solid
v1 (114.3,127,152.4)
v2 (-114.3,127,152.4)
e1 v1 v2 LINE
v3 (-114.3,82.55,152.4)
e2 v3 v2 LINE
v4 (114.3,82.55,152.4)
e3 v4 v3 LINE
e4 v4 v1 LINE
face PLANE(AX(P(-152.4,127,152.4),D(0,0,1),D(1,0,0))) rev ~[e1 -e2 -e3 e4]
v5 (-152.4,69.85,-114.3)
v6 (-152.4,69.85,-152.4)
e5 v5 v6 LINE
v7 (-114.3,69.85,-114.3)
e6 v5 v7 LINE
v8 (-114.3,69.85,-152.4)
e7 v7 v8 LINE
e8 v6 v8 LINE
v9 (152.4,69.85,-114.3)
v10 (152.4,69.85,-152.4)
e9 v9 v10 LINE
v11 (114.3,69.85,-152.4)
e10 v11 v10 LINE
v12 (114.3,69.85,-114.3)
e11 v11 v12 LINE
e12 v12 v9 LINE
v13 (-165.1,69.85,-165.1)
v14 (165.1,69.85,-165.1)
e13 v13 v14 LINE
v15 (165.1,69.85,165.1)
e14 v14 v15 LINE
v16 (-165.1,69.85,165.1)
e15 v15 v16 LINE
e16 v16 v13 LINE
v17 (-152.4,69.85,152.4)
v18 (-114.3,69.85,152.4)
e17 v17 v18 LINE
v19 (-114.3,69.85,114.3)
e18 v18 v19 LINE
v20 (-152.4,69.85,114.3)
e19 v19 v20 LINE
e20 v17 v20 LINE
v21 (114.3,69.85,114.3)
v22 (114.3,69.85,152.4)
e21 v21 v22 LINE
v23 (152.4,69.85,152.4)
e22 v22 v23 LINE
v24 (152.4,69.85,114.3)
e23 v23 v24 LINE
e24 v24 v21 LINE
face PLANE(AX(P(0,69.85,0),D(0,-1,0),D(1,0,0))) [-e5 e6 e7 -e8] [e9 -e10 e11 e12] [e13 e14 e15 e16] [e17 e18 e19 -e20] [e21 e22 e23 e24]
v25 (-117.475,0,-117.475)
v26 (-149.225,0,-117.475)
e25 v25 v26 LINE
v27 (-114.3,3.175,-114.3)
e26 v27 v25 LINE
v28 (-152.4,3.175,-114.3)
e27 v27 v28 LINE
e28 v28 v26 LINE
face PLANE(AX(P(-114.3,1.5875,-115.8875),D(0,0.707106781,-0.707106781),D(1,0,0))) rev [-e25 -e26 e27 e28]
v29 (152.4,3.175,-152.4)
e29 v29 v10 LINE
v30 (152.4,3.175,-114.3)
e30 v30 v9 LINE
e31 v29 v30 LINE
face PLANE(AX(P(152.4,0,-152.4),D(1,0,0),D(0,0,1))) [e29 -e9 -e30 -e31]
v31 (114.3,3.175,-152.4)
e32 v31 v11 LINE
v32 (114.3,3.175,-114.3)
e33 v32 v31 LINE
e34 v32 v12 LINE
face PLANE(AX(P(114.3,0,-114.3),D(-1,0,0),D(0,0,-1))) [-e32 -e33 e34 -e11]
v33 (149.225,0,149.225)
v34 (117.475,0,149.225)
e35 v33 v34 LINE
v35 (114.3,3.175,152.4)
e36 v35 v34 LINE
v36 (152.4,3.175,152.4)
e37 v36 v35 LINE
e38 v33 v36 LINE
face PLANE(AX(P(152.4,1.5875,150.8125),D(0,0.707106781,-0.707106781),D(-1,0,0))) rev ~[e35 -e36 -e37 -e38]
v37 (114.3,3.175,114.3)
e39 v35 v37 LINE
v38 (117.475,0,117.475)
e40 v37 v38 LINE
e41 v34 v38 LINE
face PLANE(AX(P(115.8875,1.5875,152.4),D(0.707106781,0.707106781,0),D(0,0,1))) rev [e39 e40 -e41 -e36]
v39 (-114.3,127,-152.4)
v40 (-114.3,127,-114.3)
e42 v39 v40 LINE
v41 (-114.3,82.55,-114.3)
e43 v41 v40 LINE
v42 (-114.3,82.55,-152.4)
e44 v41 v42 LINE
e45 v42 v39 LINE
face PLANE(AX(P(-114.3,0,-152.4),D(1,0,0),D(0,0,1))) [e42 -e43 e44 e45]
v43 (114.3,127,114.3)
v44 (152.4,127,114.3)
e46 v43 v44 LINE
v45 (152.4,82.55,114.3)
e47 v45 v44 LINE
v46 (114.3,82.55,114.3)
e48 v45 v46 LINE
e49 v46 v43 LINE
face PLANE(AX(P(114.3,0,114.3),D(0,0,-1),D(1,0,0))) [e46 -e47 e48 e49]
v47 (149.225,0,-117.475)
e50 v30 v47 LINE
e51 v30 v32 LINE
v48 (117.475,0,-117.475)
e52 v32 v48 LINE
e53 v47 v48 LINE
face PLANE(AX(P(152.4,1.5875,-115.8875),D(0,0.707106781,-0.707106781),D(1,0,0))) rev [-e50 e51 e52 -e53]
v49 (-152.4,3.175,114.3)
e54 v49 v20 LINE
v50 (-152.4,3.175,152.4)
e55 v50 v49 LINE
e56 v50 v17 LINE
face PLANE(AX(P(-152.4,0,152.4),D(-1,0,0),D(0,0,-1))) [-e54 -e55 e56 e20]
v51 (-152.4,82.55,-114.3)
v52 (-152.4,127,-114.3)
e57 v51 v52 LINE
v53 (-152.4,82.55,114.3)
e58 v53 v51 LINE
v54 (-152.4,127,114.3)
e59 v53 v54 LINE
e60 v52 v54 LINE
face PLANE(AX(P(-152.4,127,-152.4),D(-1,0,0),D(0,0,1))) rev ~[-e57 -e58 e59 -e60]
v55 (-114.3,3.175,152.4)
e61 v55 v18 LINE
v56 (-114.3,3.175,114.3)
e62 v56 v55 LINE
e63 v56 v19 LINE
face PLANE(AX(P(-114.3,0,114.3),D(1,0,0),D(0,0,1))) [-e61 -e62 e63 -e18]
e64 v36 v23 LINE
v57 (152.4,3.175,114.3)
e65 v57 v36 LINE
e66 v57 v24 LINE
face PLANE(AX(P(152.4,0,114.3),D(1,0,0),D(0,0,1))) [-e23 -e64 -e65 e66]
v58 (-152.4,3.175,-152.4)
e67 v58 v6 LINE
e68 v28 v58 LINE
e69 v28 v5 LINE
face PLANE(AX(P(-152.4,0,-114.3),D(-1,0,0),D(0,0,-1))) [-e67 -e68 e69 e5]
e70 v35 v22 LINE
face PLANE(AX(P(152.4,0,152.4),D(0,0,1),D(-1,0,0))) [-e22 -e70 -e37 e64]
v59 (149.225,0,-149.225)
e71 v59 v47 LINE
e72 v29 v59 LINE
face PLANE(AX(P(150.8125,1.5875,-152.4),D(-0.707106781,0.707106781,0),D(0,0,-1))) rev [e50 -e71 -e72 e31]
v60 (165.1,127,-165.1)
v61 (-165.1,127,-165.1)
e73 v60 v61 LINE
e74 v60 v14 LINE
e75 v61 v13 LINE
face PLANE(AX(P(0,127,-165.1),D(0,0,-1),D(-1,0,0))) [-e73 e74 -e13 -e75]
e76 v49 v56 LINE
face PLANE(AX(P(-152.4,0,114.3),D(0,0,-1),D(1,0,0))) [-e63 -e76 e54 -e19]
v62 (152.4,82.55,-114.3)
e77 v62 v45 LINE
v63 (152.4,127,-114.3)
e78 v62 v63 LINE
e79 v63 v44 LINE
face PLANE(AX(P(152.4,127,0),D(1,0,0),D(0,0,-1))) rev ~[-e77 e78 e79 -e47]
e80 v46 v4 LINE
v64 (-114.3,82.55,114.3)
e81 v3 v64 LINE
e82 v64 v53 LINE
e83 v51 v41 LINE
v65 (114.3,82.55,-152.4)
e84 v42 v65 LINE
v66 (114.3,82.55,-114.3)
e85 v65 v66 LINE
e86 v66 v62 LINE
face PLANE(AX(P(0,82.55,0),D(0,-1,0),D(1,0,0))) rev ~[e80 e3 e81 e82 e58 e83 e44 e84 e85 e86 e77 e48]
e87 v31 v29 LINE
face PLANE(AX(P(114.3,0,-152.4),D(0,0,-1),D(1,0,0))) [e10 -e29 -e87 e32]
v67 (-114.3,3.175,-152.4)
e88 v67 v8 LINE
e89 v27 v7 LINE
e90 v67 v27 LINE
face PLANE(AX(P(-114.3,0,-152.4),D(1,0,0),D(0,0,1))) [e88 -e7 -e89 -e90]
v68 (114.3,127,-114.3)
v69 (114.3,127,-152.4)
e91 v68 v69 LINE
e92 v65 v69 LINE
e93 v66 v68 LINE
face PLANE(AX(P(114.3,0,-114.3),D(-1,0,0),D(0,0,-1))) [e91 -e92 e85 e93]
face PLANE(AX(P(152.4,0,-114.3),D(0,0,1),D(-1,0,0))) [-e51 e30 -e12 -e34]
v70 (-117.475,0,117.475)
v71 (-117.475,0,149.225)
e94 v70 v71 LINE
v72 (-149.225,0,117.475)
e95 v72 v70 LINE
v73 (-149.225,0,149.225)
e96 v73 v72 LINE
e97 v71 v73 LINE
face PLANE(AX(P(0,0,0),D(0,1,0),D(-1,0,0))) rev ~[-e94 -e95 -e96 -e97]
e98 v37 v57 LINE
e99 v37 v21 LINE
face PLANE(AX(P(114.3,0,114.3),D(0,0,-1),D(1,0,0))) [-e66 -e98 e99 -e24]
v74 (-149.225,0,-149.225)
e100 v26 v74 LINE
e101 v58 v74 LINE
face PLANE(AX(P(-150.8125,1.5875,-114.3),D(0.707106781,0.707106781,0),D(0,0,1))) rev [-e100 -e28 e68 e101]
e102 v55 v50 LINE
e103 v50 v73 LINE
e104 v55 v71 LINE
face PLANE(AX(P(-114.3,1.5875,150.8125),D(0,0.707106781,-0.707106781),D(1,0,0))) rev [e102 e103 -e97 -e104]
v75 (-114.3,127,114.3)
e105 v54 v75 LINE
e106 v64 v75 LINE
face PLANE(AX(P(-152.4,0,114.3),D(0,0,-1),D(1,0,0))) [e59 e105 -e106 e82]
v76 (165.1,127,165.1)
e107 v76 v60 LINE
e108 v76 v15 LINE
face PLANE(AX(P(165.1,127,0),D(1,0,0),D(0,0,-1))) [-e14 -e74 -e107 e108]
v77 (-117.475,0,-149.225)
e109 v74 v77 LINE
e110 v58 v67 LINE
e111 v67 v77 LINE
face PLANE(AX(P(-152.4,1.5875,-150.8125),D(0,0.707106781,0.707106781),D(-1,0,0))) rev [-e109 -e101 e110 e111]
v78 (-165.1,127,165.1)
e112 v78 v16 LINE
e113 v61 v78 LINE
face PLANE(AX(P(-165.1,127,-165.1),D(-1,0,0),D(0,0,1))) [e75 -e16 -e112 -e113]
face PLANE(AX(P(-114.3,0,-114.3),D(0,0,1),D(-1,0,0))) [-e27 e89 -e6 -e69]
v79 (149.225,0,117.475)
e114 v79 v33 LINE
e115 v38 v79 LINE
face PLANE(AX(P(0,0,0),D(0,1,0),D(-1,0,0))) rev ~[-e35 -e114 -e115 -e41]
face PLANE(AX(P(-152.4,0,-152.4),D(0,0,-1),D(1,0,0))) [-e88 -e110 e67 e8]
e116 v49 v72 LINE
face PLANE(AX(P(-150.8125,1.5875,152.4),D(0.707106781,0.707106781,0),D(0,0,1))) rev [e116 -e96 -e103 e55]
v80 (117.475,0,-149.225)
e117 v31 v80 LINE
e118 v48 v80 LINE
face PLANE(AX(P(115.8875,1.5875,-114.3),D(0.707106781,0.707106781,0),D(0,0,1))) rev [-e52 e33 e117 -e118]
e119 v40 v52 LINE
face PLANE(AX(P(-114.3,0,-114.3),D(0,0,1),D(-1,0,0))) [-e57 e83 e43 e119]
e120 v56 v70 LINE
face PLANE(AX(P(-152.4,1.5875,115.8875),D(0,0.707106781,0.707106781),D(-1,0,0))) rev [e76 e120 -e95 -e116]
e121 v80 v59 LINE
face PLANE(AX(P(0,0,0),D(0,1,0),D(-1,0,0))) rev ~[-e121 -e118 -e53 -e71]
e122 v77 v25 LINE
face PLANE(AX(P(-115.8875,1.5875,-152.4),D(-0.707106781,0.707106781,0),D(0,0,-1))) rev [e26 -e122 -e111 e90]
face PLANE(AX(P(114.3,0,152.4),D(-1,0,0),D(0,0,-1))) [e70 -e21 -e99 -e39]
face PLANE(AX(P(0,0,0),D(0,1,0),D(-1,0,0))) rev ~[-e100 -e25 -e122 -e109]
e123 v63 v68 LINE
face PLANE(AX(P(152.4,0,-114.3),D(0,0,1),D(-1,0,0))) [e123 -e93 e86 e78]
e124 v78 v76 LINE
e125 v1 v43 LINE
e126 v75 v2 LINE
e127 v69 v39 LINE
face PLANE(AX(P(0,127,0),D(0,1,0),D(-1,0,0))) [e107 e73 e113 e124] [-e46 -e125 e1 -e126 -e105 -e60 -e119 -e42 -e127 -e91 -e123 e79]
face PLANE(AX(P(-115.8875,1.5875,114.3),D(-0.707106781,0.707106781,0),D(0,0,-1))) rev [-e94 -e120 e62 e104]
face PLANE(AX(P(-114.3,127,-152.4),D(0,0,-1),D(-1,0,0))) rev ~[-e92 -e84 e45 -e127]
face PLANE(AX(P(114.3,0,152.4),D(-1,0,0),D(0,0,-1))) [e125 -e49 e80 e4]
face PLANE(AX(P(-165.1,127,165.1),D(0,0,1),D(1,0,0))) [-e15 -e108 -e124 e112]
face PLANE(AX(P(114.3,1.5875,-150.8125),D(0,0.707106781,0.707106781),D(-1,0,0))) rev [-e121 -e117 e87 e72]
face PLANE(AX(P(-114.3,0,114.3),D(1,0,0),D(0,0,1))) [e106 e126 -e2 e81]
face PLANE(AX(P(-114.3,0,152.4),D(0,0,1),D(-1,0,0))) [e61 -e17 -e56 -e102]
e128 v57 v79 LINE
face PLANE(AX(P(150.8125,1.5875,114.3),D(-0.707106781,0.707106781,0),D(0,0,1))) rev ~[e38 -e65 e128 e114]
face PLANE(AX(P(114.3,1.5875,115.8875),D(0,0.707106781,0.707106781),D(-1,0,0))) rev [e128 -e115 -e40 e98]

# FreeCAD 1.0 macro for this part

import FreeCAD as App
import Part
import Sketcher
from FreeCAD import Vector
Q = App.Units.Quantity


def edges_at(feature, points):
    """Names of the edges that pass closest to the given points."""
    edges = feature.Shape.Edges
    near = lambda p: min(range(len(edges)), key=lambda i: edges[i].distToShape(Part.Vertex(*p))[0])
    return sorted({f"Edge{near(p) + 1}" for p in points})


def add_polygon(sketch, points):
    """Adds a closed chain of lines whose ends are joined by coincident constraints."""
    first, n = sketch.GeometryCount, len(points)
    for a, b in zip(points, points[1:] + points[:1]):
        sketch.addGeometry(Part.LineSegment(App.Vector(*a, 0), App.Vector(*b, 0)), False)
    for i in range(n):
        sketch.addConstraint(Sketcher.Constraint("Coincident", first + i, 2, first + (i + 1) % n, 1))

doc = App.newDocument("Part")
body = doc.addObject("PartDesign::Body", "Body")
body.AllowCompound = True

sketch1 = doc.addObject("Sketcher::SketchObject", "Sketch")
body.addObject(sketch1)
sketch1.AttachmentSupport = (doc.XZ_Plane, [""])
sketch1.MapMode = "FlatFace"
add_polygon(sketch1, [(-114.3, -152.4), (-152.4, -152.4), (-152.4, -114.3), (-114.3, -114.3)])
add_polygon(sketch1, [(-152.4, 114.3), (-152.4, 152.4), (-114.3, 152.4), (-114.3, 114.3)])
add_polygon(sketch1, [(114.3, 152.4), (152.4, 152.4), (152.4, 114.3), (114.3, 114.3)])
add_polygon(sketch1, [(152.4, -114.3), (152.4, -152.4), (114.3, -152.4), (114.3, -114.3)])
sketch1.addConstraint(Sketcher.Constraint("Horizontal", 0))
sketch1.addConstraint(Sketcher.Constraint("Vertical", 1))
sketch1.addConstraint(Sketcher.Constraint("Horizontal", 2))
sketch1.addConstraint(Sketcher.Constraint("Vertical", 3))
sketch1.addConstraint(Sketcher.Constraint("Vertical", 4))
sketch1.addConstraint(Sketcher.Constraint("Horizontal", 5))
sketch1.addConstraint(Sketcher.Constraint("Vertical", 6))
sketch1.addConstraint(Sketcher.Constraint("Horizontal", 7))
sketch1.addConstraint(Sketcher.Constraint("Horizontal", 8))
sketch1.addConstraint(Sketcher.Constraint("Vertical", 9))
sketch1.addConstraint(Sketcher.Constraint("Horizontal", 10))
sketch1.addConstraint(Sketcher.Constraint("Vertical", 11))
sketch1.addConstraint(Sketcher.Constraint("Vertical", 12))
sketch1.addConstraint(Sketcher.Constraint("Horizontal", 13))
sketch1.addConstraint(Sketcher.Constraint("Vertical", 14))
sketch1.addConstraint(Sketcher.Constraint("Horizontal", 15))
sketch1.addConstraint(Sketcher.Constraint("Symmetric", 0, 2, 8, 2, -1, 1))
sketch1.addConstraint(Sketcher.Constraint("Symmetric", 2, 2, 10, 2, -1, 1))
sketch1.addConstraint(Sketcher.Constraint("Symmetric", 4, 2, 12, 2, -1, 1))
sketch1.addConstraint(Sketcher.Constraint("Symmetric", 6, 2, 14, 2, -1, 1))
sketch1.addConstraint(Sketcher.Constraint("Symmetric", 4, 2, 8, 2, -2))
sketch1.addConstraint(Sketcher.Constraint("Symmetric", 6, 2, 10, 2, -2))
sketch1.addConstraint(Sketcher.Constraint("Equal", 15, 1))
sketch1.addConstraint(Sketcher.Constraint("DistanceX", 0, 2, 0, 1, Q("1.5 in")))
sketch1.addConstraint(Sketcher.Constraint("DistanceY", 0, 2, 4, 2, Q("12 in")))
sketch1.addConstraint(Sketcher.Constraint("DistanceX", 4, 2, 8, 2, Q("12 in")))
pad1 = doc.addObject("PartDesign::Pad", "Pad")
body.addObject(pad1)
pad1.Profile = sketch1
pad1.Length = Q("5 in")
pad1.Reversed = True

sketch2 = doc.addObject("Sketcher::SketchObject", "Sketch001")
body.addObject(sketch2)
sketch2.AttachmentSupport = (doc.XZ_Plane, [""])
sketch2.MapMode = "FlatFace"
sketch2.AttachmentOffset = App.Placement(Vector(0, 0, -5 * 25.4), App.Rotation())
add_polygon(sketch2, [(-165.1, -165.1), (-165.1, 165.1), (165.1, 165.1), (165.1, -165.1)])
add_polygon(sketch2, [(-152.4, -152.4), (152.4, -152.4), (152.4, 152.4), (-152.4, 152.4)])
sketch2.addConstraint(Sketcher.Constraint("Vertical", 0))
sketch2.addConstraint(Sketcher.Constraint("Horizontal", 1))
sketch2.addConstraint(Sketcher.Constraint("Vertical", 2))
sketch2.addConstraint(Sketcher.Constraint("Horizontal", 3))
sketch2.addConstraint(Sketcher.Constraint("Horizontal", 4))
sketch2.addConstraint(Sketcher.Constraint("Vertical", 5))
sketch2.addConstraint(Sketcher.Constraint("Horizontal", 6))
sketch2.addConstraint(Sketcher.Constraint("Vertical", 7))
sketch2.addConstraint(Sketcher.Constraint("Symmetric", 0, 2, 2, 2, -1, 1))
sketch2.addConstraint(Sketcher.Constraint("Symmetric", 4, 2, 6, 2, -1, 1))
sketch2.addConstraint(Sketcher.Constraint("Equal", 3, 0))
sketch2.addConstraint(Sketcher.Constraint("Equal", 6, 5))
sketch2.addConstraint(Sketcher.Constraint("DistanceX", 4, 2, 2, 2, Q("0.5 in")))
sketch2.addConstraint(Sketcher.Constraint("DistanceX", 1, 1, 1, 2, Q("13 in")))
pad2 = doc.addObject("PartDesign::Pad", "Pad001")
body.addObject(pad2)
pad2.Profile = sketch2
pad2.Length = Q("2.25 in")

sketch3 = doc.addObject("Sketcher::SketchObject", "Sketch002")
body.addObject(sketch3)
sketch3.AttachmentSupport = (doc.XZ_Plane, [""])
sketch3.MapMode = "FlatFace"
sketch3.AttachmentOffset = App.Placement(Vector(0, 0, -2.75 * 25.4), App.Rotation())
add_polygon(sketch3, [(114.3, 114.3), (114.3, 152.4), (-114.3, 152.4), (-114.3, 114.3), (-152.4, 114.3), (-152.4, -114.3), (-114.3, -114.3), (-114.3, -152.4), (114.3, -152.4), (114.3, -114.3), (152.4, -114.3), (152.4, 114.3)])
sketch3.addConstraint(Sketcher.Constraint("Vertical", 0))
sketch3.addConstraint(Sketcher.Constraint("Horizontal", 1))
sketch3.addConstraint(Sketcher.Constraint("Vertical", 2))
sketch3.addConstraint(Sketcher.Constraint("Horizontal", 3))
sketch3.addConstraint(Sketcher.Constraint("Vertical", 4))
sketch3.addConstraint(Sketcher.Constraint("Horizontal", 5))
sketch3.addConstraint(Sketcher.Constraint("Vertical", 6))
sketch3.addConstraint(Sketcher.Constraint("Horizontal", 7))
sketch3.addConstraint(Sketcher.Constraint("Vertical", 8))
sketch3.addConstraint(Sketcher.Constraint("Horizontal", 9))
sketch3.addConstraint(Sketcher.Constraint("Vertical", 10))
sketch3.addConstraint(Sketcher.Constraint("Horizontal", 11))
sketch3.addConstraint(Sketcher.Constraint("Symmetric", 0, 2, 6, 2, -1, 1))
sketch3.addConstraint(Sketcher.Constraint("Symmetric", 2, 2, 8, 2, -1, 1))
sketch3.addConstraint(Sketcher.Constraint("Symmetric", 4, 2, 10, 2, -1, 1))
sketch3.addConstraint(Sketcher.Constraint("Symmetric", 5, 2, 8, 2, -2))
sketch3.addConstraint(Sketcher.Constraint("Equal", 11, 0))
sketch3.addConstraint(Sketcher.Constraint("Equal", 7, 4))
sketch3.addConstraint(Sketcher.Constraint("DistanceX", 1, 2, 1, 1, Q("9 in")))
sketch3.addConstraint(Sketcher.Constraint("DistanceX", 3, 2, 3, 1, Q("1.5 in")))
pad3 = doc.addObject("PartDesign::Pad", "Pad002")
body.addObject(pad3)
pad3.Profile = sketch3
pad3.Length = Q("0.5 in")
pad3.Reversed = True
doc.recompute()

chamfer = doc.addObject("PartDesign::Chamfer", "Chamfer")
body.addObject(chamfer)
chamfer.Base = (pad3, edges_at(pad3, [
    (-152.4, 0, 133.35),
    (-133.35, 0, 152.4),
    (-114.3, 0, 133.35),
    (-133.35, 0, 114.3),
    (-152.4, 0, -133.35),
    (-133.35, 0, -114.3),
    (-114.3, 0, -133.35),
    (-133.35, 0, -152.4),
    (114.3, 0, -133.35),
    (133.35, 0, -152.4),
    (133.35, 0, -114.3),
    (152.4, 0, -133.35),
    (133.35, 0, 114.3),
    (114.3, 0, 133.35),
    (133.35, 0, 152.4),
    (152.4, 0, 133.35),
]))
chamfer.Size = Q("0.125 in")

doc.recompute()
